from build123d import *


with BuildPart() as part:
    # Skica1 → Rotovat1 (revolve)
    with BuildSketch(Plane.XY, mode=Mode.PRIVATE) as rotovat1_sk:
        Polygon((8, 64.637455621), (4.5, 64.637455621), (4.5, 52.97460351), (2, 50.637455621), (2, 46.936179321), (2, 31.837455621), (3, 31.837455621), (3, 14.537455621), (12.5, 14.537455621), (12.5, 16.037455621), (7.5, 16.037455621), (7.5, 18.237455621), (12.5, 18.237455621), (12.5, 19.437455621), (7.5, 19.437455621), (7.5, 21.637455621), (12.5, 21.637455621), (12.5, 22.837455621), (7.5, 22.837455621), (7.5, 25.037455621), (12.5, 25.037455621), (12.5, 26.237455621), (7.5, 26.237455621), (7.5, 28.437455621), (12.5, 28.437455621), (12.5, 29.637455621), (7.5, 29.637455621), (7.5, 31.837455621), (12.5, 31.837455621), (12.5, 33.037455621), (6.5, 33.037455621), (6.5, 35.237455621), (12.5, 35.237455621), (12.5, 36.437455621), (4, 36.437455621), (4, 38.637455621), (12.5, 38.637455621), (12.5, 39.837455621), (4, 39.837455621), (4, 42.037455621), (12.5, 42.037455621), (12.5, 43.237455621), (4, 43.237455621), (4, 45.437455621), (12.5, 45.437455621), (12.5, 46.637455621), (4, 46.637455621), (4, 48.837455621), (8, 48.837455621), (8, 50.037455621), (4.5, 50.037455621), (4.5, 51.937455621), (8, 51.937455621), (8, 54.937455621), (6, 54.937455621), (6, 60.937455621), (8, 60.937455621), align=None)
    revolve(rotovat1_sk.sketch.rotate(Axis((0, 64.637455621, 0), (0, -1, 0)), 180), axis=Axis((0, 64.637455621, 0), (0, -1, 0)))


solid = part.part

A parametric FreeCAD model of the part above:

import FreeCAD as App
import Part
import Sketcher

doc = App.newDocument("Part")
params = doc.addObject("Spreadsheet::Sheet", "Params")
for row, (alias, value) in enumerate([
    ("sketch1_width", "1 mm"),
    ("sketch1_width2", "5 mm"),
    ("sketch1_width3", "6 mm"),
    ("sketch1_width4", "4 mm"),
    ("sketch1_width5", "2 mm"),
    ("revolution_angle", "360 deg"),
], start=1):
    params.set(f"A{row}", alias)
    params.set(f"B{row}", "=" + value)
    params.setAlias(f"B{row}", alias)

body = doc.addObject("PartDesign::Body", "Body")

# Sketch on XY plane
sketch1 = body.newObject("Sketcher::SketchObject", "Sketch")
sketch1.AttachmentSupport = (doc.getObject("XY_Plane"), [""])
sketch1.MapMode = "FlatFace"
sketch1.addGeometry([
    Part.LineSegment(App.Vector(8, 64.6, 0), App.Vector(4.5, 64.6, 0)),  # 0
    Part.LineSegment(App.Vector(4.5, 64.6, 0), App.Vector(4.5, 53, 0)),  # 1
    Part.LineSegment(App.Vector(4.5, 53, 0), App.Vector(2, 50.6, 0)),  # 2
    Part.LineSegment(App.Vector(2, 50.6, 0), App.Vector(2, 31.8, 0)),  # 3
    Part.LineSegment(App.Vector(2, 31.8, 0), App.Vector(3, 31.8, 0)),  # 4
    Part.LineSegment(App.Vector(3, 31.8, 0), App.Vector(3, 14.5, 0)),  # 5
    Part.LineSegment(App.Vector(3, 14.5, 0), App.Vector(12.5, 14.5, 0)),  # 6
    Part.LineSegment(App.Vector(12.5, 14.5, 0), App.Vector(12.5, 16, 0)),  # 7
    Part.LineSegment(App.Vector(12.5, 16, 0), App.Vector(7.5, 16, 0)),  # 8
    Part.LineSegment(App.Vector(7.5, 16, 0), App.Vector(7.5, 18.2, 0)),  # 9
    Part.LineSegment(App.Vector(7.5, 18.2, 0), App.Vector(12.5, 18.2, 0)),  # 10
    Part.LineSegment(App.Vector(12.5, 18.2, 0), App.Vector(12.5, 19.4, 0)),  # 11
    Part.LineSegment(App.Vector(12.5, 19.4, 0), App.Vector(7.5, 19.4, 0)),  # 12
    Part.LineSegment(App.Vector(7.5, 19.4, 0), App.Vector(7.5, 21.6, 0)),  # 13
    Part.LineSegment(App.Vector(7.5, 21.6, 0), App.Vector(12.5, 21.6, 0)),  # 14
    Part.LineSegment(App.Vector(12.5, 21.6, 0), App.Vector(12.5, 22.8, 0)),  # 15
    Part.LineSegment(App.Vector(12.5, 22.8, 0), App.Vector(7.5, 22.8, 0)),  # 16
    Part.LineSegment(App.Vector(7.5, 22.8, 0), App.Vector(7.5, 25, 0)),  # 17
    Part.LineSegment(App.Vector(7.5, 25, 0), App.Vector(12.5, 25, 0)),  # 18
    Part.LineSegment(App.Vector(12.5, 25, 0), App.Vector(12.5, 26.2, 0)),  # 19
    Part.LineSegment(App.Vector(12.5, 26.2, 0), App.Vector(7.5, 26.2, 0)),  # 20
    Part.LineSegment(App.Vector(7.5, 26.2, 0), App.Vector(7.5, 28.4, 0)),  # 21
    Part.LineSegment(App.Vector(7.5, 28.4, 0), App.Vector(12.5, 28.4, 0)),  # 22
    Part.LineSegment(App.Vector(12.5, 28.4, 0), App.Vector(12.5, 29.6, 0)),  # 23
    Part.LineSegment(App.Vector(12.5, 29.6, 0), App.Vector(7.5, 29.6, 0)),  # 24
    Part.LineSegment(App.Vector(7.5, 29.6, 0), App.Vector(7.5, 31.8, 0)),  # 25
    Part.LineSegment(App.Vector(7.5, 31.8, 0), App.Vector(12.5, 31.8, 0)),  # 26
    Part.LineSegment(App.Vector(12.5, 31.8, 0), App.Vector(12.5, 33, 0)),  # 27
    Part.LineSegment(App.Vector(12.5, 33, 0), App.Vector(6.5, 33, 0)),  # 28
    Part.LineSegment(App.Vector(6.5, 33, 0), App.Vector(6.5, 35.2, 0)),  # 29
    Part.LineSegment(App.Vector(6.5, 35.2, 0), App.Vector(12.5, 35.2, 0)),  # 30
    Part.LineSegment(App.Vector(12.5, 35.2, 0), App.Vector(12.5, 36.4, 0)),  # 31
    Part.LineSegment(App.Vector(12.5, 36.4, 0), App.Vector(4, 36.4, 0)),  # 32
    Part.LineSegment(App.Vector(4, 36.4, 0), App.Vector(4, 38.6, 0)),  # 33
    Part.LineSegment(App.Vector(4, 38.6, 0), App.Vector(12.5, 38.6, 0)),  # 34
    Part.LineSegment(App.Vector(12.5, 38.6, 0), App.Vector(12.5, 39.8, 0)),  # 35
    Part.LineSegment(App.Vector(12.5, 39.8, 0), App.Vector(4, 39.8, 0)),  # 36
    Part.LineSegment(App.Vector(4, 39.8, 0), App.Vector(4, 42, 0)),  # 37
    Part.LineSegment(App.Vector(4, 42, 0), App.Vector(12.5, 42, 0)),  # 38
    Part.LineSegment(App.Vector(12.5, 42, 0), App.Vector(12.5, 43.2, 0)),  # 39
    Part.LineSegment(App.Vector(12.5, 43.2, 0), App.Vector(4, 43.2, 0)),  # 40
    Part.LineSegment(App.Vector(4, 43.2, 0), App.Vector(4, 45.4, 0)),  # 41
    Part.LineSegment(App.Vector(4, 45.4, 0), App.Vector(12.5, 45.4, 0)),  # 42
    Part.LineSegment(App.Vector(12.5, 45.4, 0), App.Vector(12.5, 46.6, 0)),  # 43
    Part.LineSegment(App.Vector(12.5, 46.6, 0), App.Vector(4, 46.6, 0)),  # 44
    Part.LineSegment(App.Vector(4, 46.6, 0), App.Vector(4, 48.8, 0)),  # 45
    Part.LineSegment(App.Vector(4, 48.8, 0), App.Vector(8, 48.8, 0)),  # 46
    Part.LineSegment(App.Vector(8, 48.8, 0), App.Vector(8, 50, 0)),  # 47
    Part.LineSegment(App.Vector(8, 50, 0), App.Vector(4.5, 50, 0)),  # 48
    Part.LineSegment(App.Vector(4.5, 50, 0), App.Vector(4.5, 51.9, 0)),  # 49
    Part.LineSegment(App.Vector(4.5, 51.9, 0), App.Vector(8, 51.9, 0)),  # 50
    Part.LineSegment(App.Vector(8, 51.9, 0), App.Vector(8, 54.9, 0)),  # 51
    Part.LineSegment(App.Vector(8, 54.9, 0), App.Vector(6, 54.9, 0)),  # 52
    Part.LineSegment(App.Vector(6, 54.9, 0), App.Vector(6, 60.9, 0)),  # 53
    Part.LineSegment(App.Vector(6, 60.9, 0), App.Vector(8, 60.9, 0)),  # 54
    Part.LineSegment(App.Vector(8, 60.9, 0), App.Vector(8, 64.6, 0)),  # 55
], False)
sketch1.addConstraint([
    Sketcher.Constraint("Coincident", 0, 2, 1, 1),
    Sketcher.Constraint("Coincident", 1, 2, 2, 1),
    Sketcher.Constraint("Coincident", 2, 2, 3, 1),
    Sketcher.Constraint("Coincident", 3, 2, 4, 1),
    Sketcher.Constraint("Coincident", 4, 2, 5, 1),
    Sketcher.Constraint("Coincident", 5, 2, 6, 1),
    Sketcher.Constraint("Coincident", 6, 2, 7, 1),
    Sketcher.Constraint("Coincident", 7, 2, 8, 1),
    Sketcher.Constraint("Coincident", 8, 2, 9, 1),
    Sketcher.Constraint("Coincident", 9, 2, 10, 1),
    Sketcher.Constraint("Coincident", 10, 2, 11, 1),
    Sketcher.Constraint("Coincident", 11, 2, 12, 1),
    Sketcher.Constraint("Coincident", 12, 2, 13, 1),
    Sketcher.Constraint("Coincident", 13, 2, 14, 1),
    Sketcher.Constraint("Coincident", 14, 2, 15, 1),
    Sketcher.Constraint("Coincident", 15, 2, 16, 1),
    Sketcher.Constraint("Coincident", 16, 2, 17, 1),
    Sketcher.Constraint("Coincident", 17, 2, 18, 1),
    Sketcher.Constraint("Coincident", 18, 2, 19, 1),
    Sketcher.Constraint("Coincident", 19, 2, 20, 1),
    Sketcher.Constraint("Coincident", 20, 2, 21, 1),
    Sketcher.Constraint("Coincident", 21, 2, 22, 1),
    Sketcher.Constraint("Coincident", 22, 2, 23, 1),
    Sketcher.Constraint("Coincident", 23, 2, 24, 1),
    Sketcher.Constraint("Coincident", 24, 2, 25, 1),
    Sketcher.Constraint("Coincident", 25, 2, 26, 1),
    Sketcher.Constraint("Coincident", 26, 2, 27, 1),
    Sketcher.Constraint("Coincident", 27, 2, 28, 1),
    Sketcher.Constraint("Coincident", 28, 2, 29, 1),
    Sketcher.Constraint("Coincident", 29, 2, 30, 1),
    Sketcher.Constraint("Coincident", 30, 2, 31, 1),
    Sketcher.Constraint("Coincident", 31, 2, 32, 1),
    Sketcher.Constraint("Coincident", 32, 2, 33, 1),
    Sketcher.Constraint("Coincident", 33, 2, 34, 1),
    Sketcher.Constraint("Coincident", 34, 2, 35, 1),
    Sketcher.Constraint("Coincident", 35, 2, 36, 1),
    Sketcher.Constraint("Coincident", 36, 2, 37, 1),
    Sketcher.Constraint("Coincident", 37, 2, 38, 1),
    Sketcher.Constraint("Coincident", 38, 2, 39, 1),
    Sketcher.Constraint("Coincident", 39, 2, 40, 1),
    Sketcher.Constraint("Coincident", 40, 2, 41, 1),
    Sketcher.Constraint("Coincident", 41, 2, 42, 1),
    Sketcher.Constraint("Coincident", 42, 2, 43, 1),
    Sketcher.Constraint("Coincident", 43, 2, 44, 1),
    Sketcher.Constraint("Coincident", 44, 2, 45, 1),
    Sketcher.Constraint("Coincident", 45, 2, 46, 1),
    Sketcher.Constraint("Coincident", 46, 2, 47, 1),
    Sketcher.Constraint("Coincident", 47, 2, 48, 1),
    Sketcher.Constraint("Coincident", 48, 2, 49, 1),
    Sketcher.Constraint("Coincident", 49, 2, 50, 1),
    Sketcher.Constraint("Coincident", 50, 2, 51, 1),
    Sketcher.Constraint("Coincident", 51, 2, 52, 1),
    Sketcher.Constraint("Coincident", 52, 2, 53, 1),
    Sketcher.Constraint("Coincident", 53, 2, 54, 1),
    Sketcher.Constraint("Coincident", 54, 2, 55, 1),
    Sketcher.Constraint("Coincident", 55, 2, 0, 1),
    Sketcher.Constraint("Horizontal", 0),
    Sketcher.Constraint("Vertical", 1),
    Sketcher.Constraint("Vertical", 3),
    Sketcher.Constraint("Horizontal", 4),
    Sketcher.Constraint("Vertical", 5),
    Sketcher.Constraint("Horizontal", 6),
    Sketcher.Constraint("Vertical", 7),
    Sketcher.Constraint("Horizontal", 8),
    Sketcher.Constraint("Vertical", 9),
    Sketcher.Constraint("Horizontal", 10),
    Sketcher.Constraint("Vertical", 11),
    Sketcher.Constraint("Horizontal", 12),
    Sketcher.Constraint("Vertical", 13),
    Sketcher.Constraint("Horizontal", 14),
    Sketcher.Constraint("Vertical", 15),
    Sketcher.Constraint("Horizontal", 16),
    Sketcher.Constraint("Vertical", 17),
    Sketcher.Constraint("Horizontal", 18),
    Sketcher.Constraint("Vertical", 19),
    Sketcher.Constraint("Horizontal", 20),
    Sketcher.Constraint("Vertical", 21),
    Sketcher.Constraint("Horizontal", 22),
    Sketcher.Constraint("Vertical", 23),
    Sketcher.Constraint("Horizontal", 24),
    Sketcher.Constraint("Vertical", 25),
    Sketcher.Constraint("Horizontal", 26),
    Sketcher.Constraint("Vertical", 27),
    Sketcher.Constraint("Horizontal", 28),
    Sketcher.Constraint("Vertical", 29),
    Sketcher.Constraint("Horizontal", 30),
    Sketcher.Constraint("Vertical", 31),
    Sketcher.Constraint("Horizontal", 32),
    Sketcher.Constraint("Vertical", 33),
    Sketcher.Constraint("Horizontal", 34),
    Sketcher.Constraint("Vertical", 35),
    Sketcher.Constraint("Horizontal", 36),
    Sketcher.Constraint("Vertical", 37),
    Sketcher.Constraint("Horizontal", 38),
    Sketcher.Constraint("Vertical", 39),
    Sketcher.Constraint("Horizontal", 40),
    Sketcher.Constraint("Vertical", 41),
    Sketcher.Constraint("Horizontal", 42),
    Sketcher.Constraint("Vertical", 43),
    Sketcher.Constraint("Horizontal", 44),
    Sketcher.Constraint("Vertical", 45),
    Sketcher.Constraint("Horizontal", 46),
    Sketcher.Constraint("Vertical", 47),
    Sketcher.Constraint("Horizontal", 48),
    Sketcher.Constraint("Vertical", 49),
    Sketcher.Constraint("Horizontal", 50),
    Sketcher.Constraint("Vertical", 51),
    Sketcher.Constraint("Horizontal", 52),
    Sketcher.Constraint("Vertical", 53),
    Sketcher.Constraint("Horizontal", 54),
    Sketcher.Constraint("Vertical", 55),
    Sketcher.Constraint("Horizontal", 4, 2, 25, 2),
    Sketcher.Constraint("Vertical", 7, 2, 10, 2),
    Sketcher.Constraint("Vertical", 9, 2, 12, 2),
    Sketcher.Constraint("Vertical", 11, 2, 14, 2),
    Sketcher.Constraint("Vertical", 13, 2, 16, 2),
    Sketcher.Constraint("Vertical", 15, 2, 18, 2),
    Sketcher.Constraint("Vertical", 17, 2, 20, 2),
    Sketcher.Constraint("Vertical", 19, 2, 22, 2),
    Sketcher.Constraint("Vertical", 21, 2, 24, 2),
    Sketcher.Constraint("Vertical", 23, 2, 26, 2),
    Sketcher.Constraint("Vertical", 27, 2, 30, 2),
    Sketcher.Constraint("Vertical", 31, 2, 34, 2),
    Sketcher.Constraint("Vertical", 33, 2, 36, 2),
    Sketcher.Constraint("Vertical", 35, 2, 38, 2),
    Sketcher.Constraint("Vertical", 37, 2, 40, 2),
    Sketcher.Constraint("Vertical", 39, 2, 42, 2),
    Sketcher.Constraint("Vertical", 41, 2, 44, 2),
    Sketcher.Constraint("Vertical", 1, 2, 48, 2),
    Sketcher.Constraint("Vertical", 47, 2, 50, 2),
    Sketcher.Constraint("Vertical", 51, 2, 54, 2),
    Sketcher.Constraint("Equal", 9, 13),
    Sketcher.Constraint("Equal", 11, 15),
    Sketcher.Constraint("Equal", 13, 17),
    Sketcher.Constraint("Equal", 15, 19),
    Sketcher.Constraint("Equal", 17, 21),
    Sketcher.Constraint("Equal", 19, 23),
    Sketcher.Constraint("Equal", 21, 25),
    Sketcher.Constraint("Equal", 23, 27),
    Sketcher.Constraint("Equal", 25, 29),
    Sketcher.Constraint("Equal", 27, 31),
    Sketcher.Constraint("Equal", 29, 33),
    Sketcher.Constraint("Equal", 31, 35),
    Sketcher.Constraint("Equal", 33, 37),
    Sketcher.Constraint("Equal", 35, 39),
    Sketcher.Constraint("Equal", 37, 41),
    Sketcher.Constraint("Equal", 39, 43),
    Sketcher.Constraint("Equal", 41, 45),
    Sketcher.Constraint("Equal", 43, 47),
    Sketcher.Constraint("Equal", 30, 53),
    Sketcher.Constraint("DistanceX", 4, 1, 4, 2, 1.0),
    Sketcher.Constraint("DistanceX", 8, 2, 8, 1, 5.0),
    Sketcher.Constraint("DistanceX", 28, 2, 28, 1, 6.0),
    Sketcher.Constraint("DistanceX", 46, 1, 46, 2, 4.0),
    Sketcher.Constraint("DistanceX", 52, 2, 52, 1, 2.0),
    Sketcher.Constraint("DistanceY", 51, 1, 51, 2, 3.0),
    Sketcher.Constraint("DistanceX", 0, 2, 0, 1, 3.5),
    Sketcher.Constraint("DistanceX", 6, 1, 6, 2, 9.5),
    Sketcher.Constraint("DistanceX", 32, 2, 32, 1, 8.5),
    Sketcher.Constraint("DistanceY", 3, 2, 3, 1, 18.8),
    Sketcher.Constraint("DistanceY", 5, 2, 5, 1, 17.3),
    Sketcher.Constraint("DistanceY", 7, 1, 7, 2, 1.5),
    Sketcher.Constraint("DistanceY", 9, 1, 9, 2, 2.2),
    Sketcher.Constraint("DistanceY", 49, 1, 49, 2, 1.9),
    Sketcher.Constraint("DistanceY", 55, 1, 55, 2, 3.7),
    Sketcher.Constraint("DistanceX", -1, 1, 2, 2, 2.0),
    Sketcher.Constraint("DistanceY", 1, 2, 1, 1, 11.662852),
    Sketcher.Constraint("DistanceY", -1, 1, 0, 2, 64.637456),
])
sketch1.setExpression("Constraints[150]", "Params.sketch1_width")
sketch1.setExpression("Constraints[151]", "Params.sketch1_width2")
sketch1.setExpression("Constraints[152]", "Params.sketch1_width3")
sketch1.setExpression("Constraints[153]", "Params.sketch1_width4")
sketch1.setExpression("Constraints[154]", "Params.sketch1_width5")
revolution = body.newObject("PartDesign::Revolution", "Revolution")
revolution.Profile = sketch1
revolution.ReferenceAxis = (sketch1, ["V_Axis"])
revolution.setExpression("Angle", "Params.revolution_angle")

doc.recompute()
